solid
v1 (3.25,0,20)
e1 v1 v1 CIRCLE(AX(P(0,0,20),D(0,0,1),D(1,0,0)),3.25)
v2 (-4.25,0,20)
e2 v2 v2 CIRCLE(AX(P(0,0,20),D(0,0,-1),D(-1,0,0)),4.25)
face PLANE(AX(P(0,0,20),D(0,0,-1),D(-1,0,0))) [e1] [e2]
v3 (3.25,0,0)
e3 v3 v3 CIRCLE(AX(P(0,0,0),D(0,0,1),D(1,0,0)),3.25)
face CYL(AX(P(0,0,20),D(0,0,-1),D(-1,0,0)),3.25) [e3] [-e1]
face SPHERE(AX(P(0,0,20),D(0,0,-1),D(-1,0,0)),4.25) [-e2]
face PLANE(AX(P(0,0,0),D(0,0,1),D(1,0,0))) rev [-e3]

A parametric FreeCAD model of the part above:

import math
import FreeCAD as App
import Part
import Sketcher

V = App.Vector
Q = App.Units.Quantity

doc = App.newDocument("Part")
params = doc.addObject("Spreadsheet::Sheet", "Params")
for row, (alias, value) in enumerate([
    ("sketch1_diameter", "6.5 mm"),
    ("pad1_length", "20 mm"),
    ("sketch2_radius", "4.25 mm"),
    ("revolution_angle", "180 deg"),
], start=1):
    params.set(f"A{row}", alias)
    params.set(f"B{row}", "=" + value)
    params.setAlias(f"B{row}", alias)

body = doc.addObject("PartDesign::Body", "Body")

# Sketch on XY plane
sketch1 = body.newObject("Sketcher::SketchObject", "Sketch")
sketch1.AttachmentSupport = (doc.getObject("XY_Plane"), [""])
sketch1.MapMode = "FlatFace"
sketch1.addGeometry(Part.Circle(V(0, 0, 0), V(0, 0, 1), 3.2), False)
sketch1.addConstraint(Sketcher.Constraint("Coincident", 0, 3, -1, 1))
sketch1.addConstraint(Sketcher.Constraint("Diameter", 0, Q("6.5 mm")))
sketch1.setExpression("Constraints[1]", "Params.sketch1_diameter")
pad1 = body.newObject("PartDesign::Pad", "Pad")
pad1.Profile = sketch1
pad1.setExpression("Length", "Params.pad1_length")

# Sketch on XY plane
sketch2 = body.newObject("Sketcher::SketchObject", "Sketch001")
sketch2.AttachmentSupport = (doc.getObject("XY_Plane"), [""])
sketch2.MapMode = "FlatFace"
sketch2.AttachmentOffset = App.Placement(V(0, 0, 20), App.Rotation())
sketch2.addGeometry(Part.LineSegment(V(0, -4.2, 0), V(0, 4.2, 0)), False)
sketch2.addGeometry(Part.ArcOfCircle(Part.Circle(V(0, 0, 0), V(0, 0, 1), 4.2), math.radians(90), math.radians(270)), False)
sketch2.addConstraint(Sketcher.Constraint("Coincident", 0, 1, 1, 2))
sketch2.addConstraint(Sketcher.Constraint("Coincident", 1, 1, 0, 2))
sketch2.addConstraint(Sketcher.Constraint("Vertical", 0))
sketch2.addConstraint(Sketcher.Constraint("Coincident", 1, 3, -1, 1))
sketch2.addConstraint(Sketcher.Constraint("PointOnObject", 0, 1, -2))
sketch2.addConstraint(Sketcher.Constraint("Radius", 1, Q("4.25 mm")))
sketch2.setExpression("Constraints[5]", "Params.sketch2_radius")
revolution = body.newObject("PartDesign::Revolution", "Revolution")
revolution.Profile = sketch2
revolution.ReferenceAxis = (sketch2, ["V_Axis"])
revolution.setExpression("Angle", "Params.revolution_angle")

doc.recompute()
